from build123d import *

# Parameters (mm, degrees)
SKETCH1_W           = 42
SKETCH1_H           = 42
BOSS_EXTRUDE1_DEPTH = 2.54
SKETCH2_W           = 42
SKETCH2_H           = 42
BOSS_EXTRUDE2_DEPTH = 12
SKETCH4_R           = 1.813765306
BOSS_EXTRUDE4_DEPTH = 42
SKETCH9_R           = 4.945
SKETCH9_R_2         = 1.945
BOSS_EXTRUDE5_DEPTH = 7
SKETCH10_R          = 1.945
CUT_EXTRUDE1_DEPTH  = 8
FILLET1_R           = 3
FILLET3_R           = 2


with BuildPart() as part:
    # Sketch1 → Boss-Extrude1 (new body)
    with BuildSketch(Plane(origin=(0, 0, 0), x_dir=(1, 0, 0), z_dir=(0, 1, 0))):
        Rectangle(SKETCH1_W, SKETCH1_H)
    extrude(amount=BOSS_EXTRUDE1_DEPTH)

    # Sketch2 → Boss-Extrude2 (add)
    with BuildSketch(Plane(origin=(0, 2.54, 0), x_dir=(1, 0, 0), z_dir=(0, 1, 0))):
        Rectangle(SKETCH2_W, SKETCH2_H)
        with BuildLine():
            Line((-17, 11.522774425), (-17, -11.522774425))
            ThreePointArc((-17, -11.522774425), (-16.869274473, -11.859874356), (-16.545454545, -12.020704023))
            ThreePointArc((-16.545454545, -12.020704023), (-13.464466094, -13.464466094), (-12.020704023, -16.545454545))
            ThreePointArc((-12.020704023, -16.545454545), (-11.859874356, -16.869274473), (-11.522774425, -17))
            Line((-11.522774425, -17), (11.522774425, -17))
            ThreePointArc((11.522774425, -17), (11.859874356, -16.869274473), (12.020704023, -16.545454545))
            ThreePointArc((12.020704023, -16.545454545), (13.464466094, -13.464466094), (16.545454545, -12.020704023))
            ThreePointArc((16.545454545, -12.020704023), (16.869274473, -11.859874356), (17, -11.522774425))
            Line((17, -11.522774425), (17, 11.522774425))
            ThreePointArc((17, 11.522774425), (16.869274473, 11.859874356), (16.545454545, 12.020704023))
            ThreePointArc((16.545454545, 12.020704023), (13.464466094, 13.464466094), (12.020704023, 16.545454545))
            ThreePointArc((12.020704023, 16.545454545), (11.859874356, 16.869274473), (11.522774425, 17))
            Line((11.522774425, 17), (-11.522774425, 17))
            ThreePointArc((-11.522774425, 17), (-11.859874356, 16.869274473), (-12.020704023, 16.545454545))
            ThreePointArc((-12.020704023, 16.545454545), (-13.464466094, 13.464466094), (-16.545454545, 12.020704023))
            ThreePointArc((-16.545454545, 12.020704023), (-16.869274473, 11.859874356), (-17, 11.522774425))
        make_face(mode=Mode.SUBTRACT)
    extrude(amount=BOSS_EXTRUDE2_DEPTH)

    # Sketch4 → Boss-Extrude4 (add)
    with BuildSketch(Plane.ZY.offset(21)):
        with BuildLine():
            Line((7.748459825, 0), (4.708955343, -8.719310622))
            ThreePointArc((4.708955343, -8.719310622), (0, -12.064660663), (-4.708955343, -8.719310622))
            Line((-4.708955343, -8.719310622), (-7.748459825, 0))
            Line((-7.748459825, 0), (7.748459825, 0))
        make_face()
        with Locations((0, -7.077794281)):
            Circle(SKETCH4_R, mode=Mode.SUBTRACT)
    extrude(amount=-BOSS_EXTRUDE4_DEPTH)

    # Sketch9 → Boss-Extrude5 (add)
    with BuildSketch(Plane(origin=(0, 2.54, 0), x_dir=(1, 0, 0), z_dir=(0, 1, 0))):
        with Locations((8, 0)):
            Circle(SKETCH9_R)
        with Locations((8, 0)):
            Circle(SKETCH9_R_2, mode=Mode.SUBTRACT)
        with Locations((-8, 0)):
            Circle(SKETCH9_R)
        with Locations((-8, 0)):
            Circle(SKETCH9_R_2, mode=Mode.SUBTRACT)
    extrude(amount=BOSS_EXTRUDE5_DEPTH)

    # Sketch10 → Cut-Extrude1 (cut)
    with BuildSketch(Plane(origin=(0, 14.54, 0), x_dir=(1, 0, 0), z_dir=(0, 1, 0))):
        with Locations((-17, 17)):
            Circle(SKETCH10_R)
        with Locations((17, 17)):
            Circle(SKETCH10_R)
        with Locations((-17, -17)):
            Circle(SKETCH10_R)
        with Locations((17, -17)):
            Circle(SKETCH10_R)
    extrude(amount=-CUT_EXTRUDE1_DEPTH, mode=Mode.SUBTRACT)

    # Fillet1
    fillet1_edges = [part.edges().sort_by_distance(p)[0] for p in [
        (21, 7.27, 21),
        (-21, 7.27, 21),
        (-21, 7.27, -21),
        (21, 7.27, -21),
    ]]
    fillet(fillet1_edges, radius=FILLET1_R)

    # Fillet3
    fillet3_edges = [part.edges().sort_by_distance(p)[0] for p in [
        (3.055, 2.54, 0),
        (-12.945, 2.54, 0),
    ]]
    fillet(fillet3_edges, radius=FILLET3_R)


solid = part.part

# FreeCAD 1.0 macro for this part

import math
import FreeCAD as App
import Part
import Sketcher
Q = App.Units.Quantity


def edges_at(feature, points):
    """Names of the edges that pass closest to the given points."""
    edges = feature.Shape.Edges
    near = lambda p: min(range(len(edges)), key=lambda i: edges[i].distToShape(Part.Vertex(*p))[0])
    return sorted({f"Edge{near(p) + 1}" for p in points})


def add_polygon(sketch, points):
    """Adds a closed chain of lines whose ends are joined by coincident constraints."""
    first, n = sketch.GeometryCount, len(points)
    for a, b in zip(points, points[1:] + points[:1]):
        sketch.addGeometry(Part.LineSegment(App.Vector(*a, 0), App.Vector(*b, 0)), False)
    for i in range(n):
        sketch.addConstraint(Sketcher.Constraint("Coincident", first + i, 2, first + (i + 1) % n, 1))

doc = App.newDocument("Part")
body = doc.addObject("PartDesign::Body", "Body")

sketch1 = body.newObject("Sketcher::SketchObject", "Sketch")
sketch1.AttachmentSupport = (doc.getObject("XZ_Plane"), [""])
sketch1.MapMode = "FlatFace"
add_polygon(sketch1, [(-21, -21), (-21, 21), (21, 21), (21, -21)])
sketch1.addConstraint([
    Sketcher.Constraint("Vertical", 0),
    Sketcher.Constraint("Horizontal", 1),
    Sketcher.Constraint("Vertical", 2),
    Sketcher.Constraint("Horizontal", 3),
    Sketcher.Constraint("Symmetric", 0, 2, 2, 2, -1, 1),
    Sketcher.Constraint("Equal", 3, 0),
    Sketcher.Constraint("DistanceX", 1, 1, 1, 2, Q("42 mm")),
])
pad1 = body.newObject("PartDesign::Pad", "Pad")
pad1.Profile = sketch1
pad1.Length = 2.54
pad1.Reversed = True

sketch2 = body.newObject("Sketcher::SketchObject", "Sketch001")
sketch2.AttachmentSupport = (doc.getObject("XZ_Plane"), [""])
sketch2.MapMode = "FlatFace"
sketch2.AttachmentOffset = App.Placement(App.Vector(0, 0, -2.54), App.Rotation())
add_polygon(sketch2, [(-21, -21), (-21, 21), (21, 21), (21, -21)])
sketch2.addGeometry(Part.LineSegment(App.Vector(-17, 11.5, 0), App.Vector(-17, -11.5, 0)), False)
sketch2.addGeometry(Part.ArcOfCircle(Part.Circle(App.Vector(-16.5, -11.5, 0), App.Vector(0, 0, 1), 0.5), math.radians(180), math.radians(265)), False)
sketch2.addGeometry(Part.ArcOfCircle(Part.Circle(App.Vector(-17, -17, 0), App.Vector(0, 0, 1), 5), math.radians(5), math.radians(85)), False)
sketch2.addGeometry(Part.ArcOfCircle(Part.Circle(App.Vector(-11.5, -16.5, 0), App.Vector(0, 0, 1), 0.5), math.radians(-175), math.radians(-90)), False)
sketch2.addGeometry(Part.LineSegment(App.Vector(-11.5, -17, 0), App.Vector(11.5, -17, 0)), False)
sketch2.addGeometry(Part.ArcOfCircle(Part.Circle(App.Vector(11.5, -16.5, 0), App.Vector(0, 0, 1), 0.5), math.radians(-90), math.radians(-5)), False)
sketch2.addGeometry(Part.ArcOfCircle(Part.Circle(App.Vector(17, -17, 0), App.Vector(0, 0, 1), 5), math.radians(95), math.radians(175)), False)
sketch2.addGeometry(Part.ArcOfCircle(Part.Circle(App.Vector(16.5, -11.5, 0), App.Vector(0, 0, 1), 0.5), math.radians(-85), math.radians(0)), False)
sketch2.addGeometry(Part.LineSegment(App.Vector(17, -11.5, 0), App.Vector(17, 11.5, 0)), False)
sketch2.addGeometry(Part.ArcOfCircle(Part.Circle(App.Vector(16.5, 11.5, 0), App.Vector(0, 0, 1), 0.5), math.radians(0), math.radians(85)), False)
sketch2.addGeometry(Part.ArcOfCircle(Part.Circle(App.Vector(17, 17, 0), App.Vector(0, 0, 1), 5), math.radians(-175), math.radians(-95)), False)
sketch2.addGeometry(Part.ArcOfCircle(Part.Circle(App.Vector(11.5, 16.5, 0), App.Vector(0, 0, 1), 0.5), math.radians(5), math.radians(90)), False)
sketch2.addGeometry(Part.LineSegment(App.Vector(11.5, 17, 0), App.Vector(-11.5, 17, 0)), False)
sketch2.addGeometry(Part.ArcOfCircle(Part.Circle(App.Vector(-11.5, 16.5, 0), App.Vector(0, 0, 1), 0.5), math.radians(90), math.radians(175)), False)
sketch2.addGeometry(Part.ArcOfCircle(Part.Circle(App.Vector(-17, 17, 0), App.Vector(0, 0, 1), 5), math.radians(-85), math.radians(-5)), False)
sketch2.addGeometry(Part.ArcOfCircle(Part.Circle(App.Vector(-16.5, 11.5, 0), App.Vector(0, 0, 1), 0.5), math.radians(95), math.radians(180)), False)
sketch2.addConstraint([
    Sketcher.Constraint("Tangent", 4, 2, 5, 1),
    Sketcher.Constraint("Tangent", 5, 2, 6, 2),
    Sketcher.Constraint("Tangent", 6, 1, 7, 1),
    Sketcher.Constraint("Tangent", 7, 2, 8, 1),
    Sketcher.Constraint("Tangent", 8, 2, 9, 1),
    Sketcher.Constraint("Tangent", 9, 2, 10, 2),
    Sketcher.Constraint("Tangent", 10, 1, 11, 1),
    Sketcher.Constraint("Tangent", 11, 2, 12, 1),
    Sketcher.Constraint("Tangent", 12, 2, 13, 1),
    Sketcher.Constraint("Tangent", 13, 2, 14, 2),
    Sketcher.Constraint("Tangent", 14, 1, 15, 1),
    Sketcher.Constraint("Tangent", 15, 2, 16, 1),
    Sketcher.Constraint("Tangent", 16, 2, 17, 1),
    Sketcher.Constraint("Tangent", 17, 2, 18, 2),
    Sketcher.Constraint("Tangent", 18, 1, 19, 1),
    Sketcher.Constraint("Tangent", 19, 2, 4, 1),
    Sketcher.Constraint("Vertical", 0),
    Sketcher.Constraint("Horizontal", 1),
    Sketcher.Constraint("Vertical", 2),
    Sketcher.Constraint("Horizontal", 3),
    Sketcher.Constraint("Vertical", 4),
    Sketcher.Constraint("Horizontal", 8),
    Sketcher.Constraint("Vertical", 12),
    Sketcher.Constraint("Horizontal", 16),
    Sketcher.Constraint("Equal", 5, 7),
    Sketcher.Constraint("Equal", 7, 9),
    Sketcher.Constraint("Equal", 6, 10),
    Sketcher.Constraint("Equal", 9, 11),
    Sketcher.Constraint("Equal", 11, 13),
    Sketcher.Constraint("Equal", 10, 14),
    Sketcher.Constraint("Equal", 13, 15),
    Sketcher.Constraint("Equal", 15, 17),
    Sketcher.Constraint("Equal", 14, 18),
    Sketcher.Constraint("Equal", 17, 19),
    Sketcher.Constraint("Symmetric", 5, 3, 13, 3, -1, 1),
    Sketcher.Constraint("Symmetric", 7, 3, 15, 3, -1, 1),
    Sketcher.Constraint("Symmetric", 10, 3, 18, 3, -1, 1),
    Sketcher.Constraint("Symmetric", 0, 2, 2, 2, -1, 1),
    Sketcher.Constraint("Symmetric", 6, 3, 10, 3, -2),
    Sketcher.Constraint("Horizontal", 10, 3, 7, 2),
    Sketcher.Constraint("Vertical", 18, 3, 4, 2),
    Sketcher.Constraint("Equal", 3, 0),
    Sketcher.Constraint("Equal", 16, 4),
    Sketcher.Constraint("Radius", 6, Q("5 mm")),
    Sketcher.Constraint("Radius", 5, Q("0.5 mm")),
    Sketcher.Constraint("DistanceX", 1, 1, 1, 2, Q("42 mm")),
    Sketcher.Constraint("DistanceX", 6, 3, -1, 1, Q("17 mm")),
])
pad2 = body.newObject("PartDesign::Pad", "Pad001")
pad2.Profile = sketch2
pad2.Length = 12
pad2.Reversed = True

sketch3 = body.newObject("Sketcher::SketchObject", "Sketch002")
sketch3.AttachmentSupport = (doc.getObject("YZ_Plane"), [""])
sketch3.MapMode = "FlatFace"
sketch3.AttachmentOffset = App.Placement(App.Vector(0, 0, -21), App.Rotation())
sketch3.addGeometry([
    Part.LineSegment(App.Vector(-8.7, 4.7, 0), App.Vector(0, 7.7, 0)),
    Part.LineSegment(App.Vector(0, 7.7, 0), App.Vector(0, -7.7, 0)),
    Part.LineSegment(App.Vector(0, -7.7, 0), App.Vector(-8.7, -4.7, 0)),
    Part.ArcOfCircle(Part.Circle(App.Vector(-7.1, 0, 0), App.Vector(0, 0, 1), 5), math.radians(109), math.radians(251)),
    Part.Circle(App.Vector(-7.1, 0, 0), App.Vector(0, 0, 1), 1.8),
], False)
sketch3.addConstraint([
    Sketcher.Constraint("Coincident", 0, 2, 1, 1),
    Sketcher.Constraint("Coincident", 1, 2, 2, 1),
    Sketcher.Constraint("Tangent", 2, 2, 3, 2),
    Sketcher.Constraint("Tangent", 3, 1, 0, 1),
    Sketcher.Constraint("Vertical", 1),
    Sketcher.Constraint("Coincident", 4, 3, 3, 3),
    Sketcher.Constraint("Symmetric", 0, 2, 1, 2, -1, 1),
    Sketcher.Constraint("PointOnObject", 3, 3, -1),
    Sketcher.Constraint("Diameter", 4, Q("3.627531 mm")),
    Sketcher.Constraint("Radius", 3, Q("4.986866 mm")),
    Sketcher.Constraint("DistanceY", 1, 2, 1, 1, Q("15.49692 mm")),
    Sketcher.Constraint("DistanceX", 2, 2, -1, 1, Q("8.719311 mm")),
])
pad3 = body.newObject("PartDesign::Pad", "Pad002")
pad3.Profile = sketch3
pad3.Length = 42

sketch4 = body.newObject("Sketcher::SketchObject", "Sketch003")
sketch4.AttachmentSupport = (doc.getObject("XZ_Plane"), [""])
sketch4.MapMode = "FlatFace"
sketch4.AttachmentOffset = App.Placement(App.Vector(0, 0, -2.54), App.Rotation())
sketch4.addGeometry([
    Part.Circle(App.Vector(8, 0, 0), App.Vector(0, 0, 1), 4.9),
    Part.Circle(App.Vector(8, 0, 0), App.Vector(0, 0, 1), 1.9),
    Part.Circle(App.Vector(-8, 0, 0), App.Vector(0, 0, 1), 4.9),
    Part.Circle(App.Vector(-8, 0, 0), App.Vector(0, 0, 1), 1.9),
], False)
sketch4.addConstraint([
    Sketcher.Constraint("Coincident", 1, 3, 0, 3),
    Sketcher.Constraint("Coincident", 3, 3, 2, 3),
    Sketcher.Constraint("Equal", 0, 2),
    Sketcher.Constraint("Equal", 1, 3),
    Sketcher.Constraint("Symmetric", 0, 3, 2, 3, -1, 1),
    Sketcher.Constraint("PointOnObject", 0, 3, -1),
    Sketcher.Constraint("Diameter", 0, Q("9.89 mm")),
    Sketcher.Constraint("Diameter", 1, Q("3.89 mm")),
    Sketcher.Constraint("DistanceX", -1, 1, 0, 3, Q("8 mm")),
])
pad4 = body.newObject("PartDesign::Pad", "Pad003")
pad4.Profile = sketch4
pad4.Length = 7
pad4.Reversed = True

sketch5 = body.newObject("Sketcher::SketchObject", "Sketch004")
sketch5.AttachmentSupport = (doc.getObject("XZ_Plane"), [""])
sketch5.MapMode = "FlatFace"
sketch5.AttachmentOffset = App.Placement(App.Vector(0, 0, -14.54), App.Rotation())
sketch5.addGeometry([
    Part.Circle(App.Vector(-17, -17, 0), App.Vector(0, 0, 1), 1.9),
    Part.Circle(App.Vector(17, -17, 0), App.Vector(0, 0, 1), 1.9),
    Part.Circle(App.Vector(-17, 17, 0), App.Vector(0, 0, 1), 1.9),
    Part.Circle(App.Vector(17, 17, 0), App.Vector(0, 0, 1), 1.9),
], False)
sketch5.addConstraint([
    Sketcher.Constraint("Equal", 0, 1),
    Sketcher.Constraint("Equal", 1, 2),
    Sketcher.Constraint("Equal", 2, 3),
    Sketcher.Constraint("Symmetric", 1, 3, 2, 3, -1, 1),
    Sketcher.Constraint("Symmetric", 0, 3, 3, 3, -1, 1),
    Sketcher.Constraint("Symmetric", 0, 3, 1, 3, -2),
    Sketcher.Constraint("Diameter", 0, Q("3.89 mm")),
    Sketcher.Constraint("DistanceX", 0, 3, -1, 1, Q("17 mm")),
    Sketcher.Constraint("DistanceY", 0, 3, -1, 1, Q("17 mm")),
])
pocket1 = body.newObject("PartDesign::Pocket", "Pocket")
pocket1.Profile = sketch5
pocket1.Length = 8
pocket1.Reversed = True
doc.recompute()

fillet = body.newObject("PartDesign::Fillet", "Fillet")
fillet.Base = (pocket1, edges_at(pocket1, [
    (21, 7.27, 21),
    (-21, 7.27, 21),
    (-21, 7.27, -21),
    (21, 7.27, -21),
]))
fillet.Radius = 3
doc.recompute()

fillet2 = body.newObject("PartDesign::Fillet", "Fillet001")
fillet2.Base = (fillet, edges_at(fillet, [(3.055, 2.54, 0), (-12.945, 2.54, 0)]))
fillet2.Radius = 2

doc.recompute()
